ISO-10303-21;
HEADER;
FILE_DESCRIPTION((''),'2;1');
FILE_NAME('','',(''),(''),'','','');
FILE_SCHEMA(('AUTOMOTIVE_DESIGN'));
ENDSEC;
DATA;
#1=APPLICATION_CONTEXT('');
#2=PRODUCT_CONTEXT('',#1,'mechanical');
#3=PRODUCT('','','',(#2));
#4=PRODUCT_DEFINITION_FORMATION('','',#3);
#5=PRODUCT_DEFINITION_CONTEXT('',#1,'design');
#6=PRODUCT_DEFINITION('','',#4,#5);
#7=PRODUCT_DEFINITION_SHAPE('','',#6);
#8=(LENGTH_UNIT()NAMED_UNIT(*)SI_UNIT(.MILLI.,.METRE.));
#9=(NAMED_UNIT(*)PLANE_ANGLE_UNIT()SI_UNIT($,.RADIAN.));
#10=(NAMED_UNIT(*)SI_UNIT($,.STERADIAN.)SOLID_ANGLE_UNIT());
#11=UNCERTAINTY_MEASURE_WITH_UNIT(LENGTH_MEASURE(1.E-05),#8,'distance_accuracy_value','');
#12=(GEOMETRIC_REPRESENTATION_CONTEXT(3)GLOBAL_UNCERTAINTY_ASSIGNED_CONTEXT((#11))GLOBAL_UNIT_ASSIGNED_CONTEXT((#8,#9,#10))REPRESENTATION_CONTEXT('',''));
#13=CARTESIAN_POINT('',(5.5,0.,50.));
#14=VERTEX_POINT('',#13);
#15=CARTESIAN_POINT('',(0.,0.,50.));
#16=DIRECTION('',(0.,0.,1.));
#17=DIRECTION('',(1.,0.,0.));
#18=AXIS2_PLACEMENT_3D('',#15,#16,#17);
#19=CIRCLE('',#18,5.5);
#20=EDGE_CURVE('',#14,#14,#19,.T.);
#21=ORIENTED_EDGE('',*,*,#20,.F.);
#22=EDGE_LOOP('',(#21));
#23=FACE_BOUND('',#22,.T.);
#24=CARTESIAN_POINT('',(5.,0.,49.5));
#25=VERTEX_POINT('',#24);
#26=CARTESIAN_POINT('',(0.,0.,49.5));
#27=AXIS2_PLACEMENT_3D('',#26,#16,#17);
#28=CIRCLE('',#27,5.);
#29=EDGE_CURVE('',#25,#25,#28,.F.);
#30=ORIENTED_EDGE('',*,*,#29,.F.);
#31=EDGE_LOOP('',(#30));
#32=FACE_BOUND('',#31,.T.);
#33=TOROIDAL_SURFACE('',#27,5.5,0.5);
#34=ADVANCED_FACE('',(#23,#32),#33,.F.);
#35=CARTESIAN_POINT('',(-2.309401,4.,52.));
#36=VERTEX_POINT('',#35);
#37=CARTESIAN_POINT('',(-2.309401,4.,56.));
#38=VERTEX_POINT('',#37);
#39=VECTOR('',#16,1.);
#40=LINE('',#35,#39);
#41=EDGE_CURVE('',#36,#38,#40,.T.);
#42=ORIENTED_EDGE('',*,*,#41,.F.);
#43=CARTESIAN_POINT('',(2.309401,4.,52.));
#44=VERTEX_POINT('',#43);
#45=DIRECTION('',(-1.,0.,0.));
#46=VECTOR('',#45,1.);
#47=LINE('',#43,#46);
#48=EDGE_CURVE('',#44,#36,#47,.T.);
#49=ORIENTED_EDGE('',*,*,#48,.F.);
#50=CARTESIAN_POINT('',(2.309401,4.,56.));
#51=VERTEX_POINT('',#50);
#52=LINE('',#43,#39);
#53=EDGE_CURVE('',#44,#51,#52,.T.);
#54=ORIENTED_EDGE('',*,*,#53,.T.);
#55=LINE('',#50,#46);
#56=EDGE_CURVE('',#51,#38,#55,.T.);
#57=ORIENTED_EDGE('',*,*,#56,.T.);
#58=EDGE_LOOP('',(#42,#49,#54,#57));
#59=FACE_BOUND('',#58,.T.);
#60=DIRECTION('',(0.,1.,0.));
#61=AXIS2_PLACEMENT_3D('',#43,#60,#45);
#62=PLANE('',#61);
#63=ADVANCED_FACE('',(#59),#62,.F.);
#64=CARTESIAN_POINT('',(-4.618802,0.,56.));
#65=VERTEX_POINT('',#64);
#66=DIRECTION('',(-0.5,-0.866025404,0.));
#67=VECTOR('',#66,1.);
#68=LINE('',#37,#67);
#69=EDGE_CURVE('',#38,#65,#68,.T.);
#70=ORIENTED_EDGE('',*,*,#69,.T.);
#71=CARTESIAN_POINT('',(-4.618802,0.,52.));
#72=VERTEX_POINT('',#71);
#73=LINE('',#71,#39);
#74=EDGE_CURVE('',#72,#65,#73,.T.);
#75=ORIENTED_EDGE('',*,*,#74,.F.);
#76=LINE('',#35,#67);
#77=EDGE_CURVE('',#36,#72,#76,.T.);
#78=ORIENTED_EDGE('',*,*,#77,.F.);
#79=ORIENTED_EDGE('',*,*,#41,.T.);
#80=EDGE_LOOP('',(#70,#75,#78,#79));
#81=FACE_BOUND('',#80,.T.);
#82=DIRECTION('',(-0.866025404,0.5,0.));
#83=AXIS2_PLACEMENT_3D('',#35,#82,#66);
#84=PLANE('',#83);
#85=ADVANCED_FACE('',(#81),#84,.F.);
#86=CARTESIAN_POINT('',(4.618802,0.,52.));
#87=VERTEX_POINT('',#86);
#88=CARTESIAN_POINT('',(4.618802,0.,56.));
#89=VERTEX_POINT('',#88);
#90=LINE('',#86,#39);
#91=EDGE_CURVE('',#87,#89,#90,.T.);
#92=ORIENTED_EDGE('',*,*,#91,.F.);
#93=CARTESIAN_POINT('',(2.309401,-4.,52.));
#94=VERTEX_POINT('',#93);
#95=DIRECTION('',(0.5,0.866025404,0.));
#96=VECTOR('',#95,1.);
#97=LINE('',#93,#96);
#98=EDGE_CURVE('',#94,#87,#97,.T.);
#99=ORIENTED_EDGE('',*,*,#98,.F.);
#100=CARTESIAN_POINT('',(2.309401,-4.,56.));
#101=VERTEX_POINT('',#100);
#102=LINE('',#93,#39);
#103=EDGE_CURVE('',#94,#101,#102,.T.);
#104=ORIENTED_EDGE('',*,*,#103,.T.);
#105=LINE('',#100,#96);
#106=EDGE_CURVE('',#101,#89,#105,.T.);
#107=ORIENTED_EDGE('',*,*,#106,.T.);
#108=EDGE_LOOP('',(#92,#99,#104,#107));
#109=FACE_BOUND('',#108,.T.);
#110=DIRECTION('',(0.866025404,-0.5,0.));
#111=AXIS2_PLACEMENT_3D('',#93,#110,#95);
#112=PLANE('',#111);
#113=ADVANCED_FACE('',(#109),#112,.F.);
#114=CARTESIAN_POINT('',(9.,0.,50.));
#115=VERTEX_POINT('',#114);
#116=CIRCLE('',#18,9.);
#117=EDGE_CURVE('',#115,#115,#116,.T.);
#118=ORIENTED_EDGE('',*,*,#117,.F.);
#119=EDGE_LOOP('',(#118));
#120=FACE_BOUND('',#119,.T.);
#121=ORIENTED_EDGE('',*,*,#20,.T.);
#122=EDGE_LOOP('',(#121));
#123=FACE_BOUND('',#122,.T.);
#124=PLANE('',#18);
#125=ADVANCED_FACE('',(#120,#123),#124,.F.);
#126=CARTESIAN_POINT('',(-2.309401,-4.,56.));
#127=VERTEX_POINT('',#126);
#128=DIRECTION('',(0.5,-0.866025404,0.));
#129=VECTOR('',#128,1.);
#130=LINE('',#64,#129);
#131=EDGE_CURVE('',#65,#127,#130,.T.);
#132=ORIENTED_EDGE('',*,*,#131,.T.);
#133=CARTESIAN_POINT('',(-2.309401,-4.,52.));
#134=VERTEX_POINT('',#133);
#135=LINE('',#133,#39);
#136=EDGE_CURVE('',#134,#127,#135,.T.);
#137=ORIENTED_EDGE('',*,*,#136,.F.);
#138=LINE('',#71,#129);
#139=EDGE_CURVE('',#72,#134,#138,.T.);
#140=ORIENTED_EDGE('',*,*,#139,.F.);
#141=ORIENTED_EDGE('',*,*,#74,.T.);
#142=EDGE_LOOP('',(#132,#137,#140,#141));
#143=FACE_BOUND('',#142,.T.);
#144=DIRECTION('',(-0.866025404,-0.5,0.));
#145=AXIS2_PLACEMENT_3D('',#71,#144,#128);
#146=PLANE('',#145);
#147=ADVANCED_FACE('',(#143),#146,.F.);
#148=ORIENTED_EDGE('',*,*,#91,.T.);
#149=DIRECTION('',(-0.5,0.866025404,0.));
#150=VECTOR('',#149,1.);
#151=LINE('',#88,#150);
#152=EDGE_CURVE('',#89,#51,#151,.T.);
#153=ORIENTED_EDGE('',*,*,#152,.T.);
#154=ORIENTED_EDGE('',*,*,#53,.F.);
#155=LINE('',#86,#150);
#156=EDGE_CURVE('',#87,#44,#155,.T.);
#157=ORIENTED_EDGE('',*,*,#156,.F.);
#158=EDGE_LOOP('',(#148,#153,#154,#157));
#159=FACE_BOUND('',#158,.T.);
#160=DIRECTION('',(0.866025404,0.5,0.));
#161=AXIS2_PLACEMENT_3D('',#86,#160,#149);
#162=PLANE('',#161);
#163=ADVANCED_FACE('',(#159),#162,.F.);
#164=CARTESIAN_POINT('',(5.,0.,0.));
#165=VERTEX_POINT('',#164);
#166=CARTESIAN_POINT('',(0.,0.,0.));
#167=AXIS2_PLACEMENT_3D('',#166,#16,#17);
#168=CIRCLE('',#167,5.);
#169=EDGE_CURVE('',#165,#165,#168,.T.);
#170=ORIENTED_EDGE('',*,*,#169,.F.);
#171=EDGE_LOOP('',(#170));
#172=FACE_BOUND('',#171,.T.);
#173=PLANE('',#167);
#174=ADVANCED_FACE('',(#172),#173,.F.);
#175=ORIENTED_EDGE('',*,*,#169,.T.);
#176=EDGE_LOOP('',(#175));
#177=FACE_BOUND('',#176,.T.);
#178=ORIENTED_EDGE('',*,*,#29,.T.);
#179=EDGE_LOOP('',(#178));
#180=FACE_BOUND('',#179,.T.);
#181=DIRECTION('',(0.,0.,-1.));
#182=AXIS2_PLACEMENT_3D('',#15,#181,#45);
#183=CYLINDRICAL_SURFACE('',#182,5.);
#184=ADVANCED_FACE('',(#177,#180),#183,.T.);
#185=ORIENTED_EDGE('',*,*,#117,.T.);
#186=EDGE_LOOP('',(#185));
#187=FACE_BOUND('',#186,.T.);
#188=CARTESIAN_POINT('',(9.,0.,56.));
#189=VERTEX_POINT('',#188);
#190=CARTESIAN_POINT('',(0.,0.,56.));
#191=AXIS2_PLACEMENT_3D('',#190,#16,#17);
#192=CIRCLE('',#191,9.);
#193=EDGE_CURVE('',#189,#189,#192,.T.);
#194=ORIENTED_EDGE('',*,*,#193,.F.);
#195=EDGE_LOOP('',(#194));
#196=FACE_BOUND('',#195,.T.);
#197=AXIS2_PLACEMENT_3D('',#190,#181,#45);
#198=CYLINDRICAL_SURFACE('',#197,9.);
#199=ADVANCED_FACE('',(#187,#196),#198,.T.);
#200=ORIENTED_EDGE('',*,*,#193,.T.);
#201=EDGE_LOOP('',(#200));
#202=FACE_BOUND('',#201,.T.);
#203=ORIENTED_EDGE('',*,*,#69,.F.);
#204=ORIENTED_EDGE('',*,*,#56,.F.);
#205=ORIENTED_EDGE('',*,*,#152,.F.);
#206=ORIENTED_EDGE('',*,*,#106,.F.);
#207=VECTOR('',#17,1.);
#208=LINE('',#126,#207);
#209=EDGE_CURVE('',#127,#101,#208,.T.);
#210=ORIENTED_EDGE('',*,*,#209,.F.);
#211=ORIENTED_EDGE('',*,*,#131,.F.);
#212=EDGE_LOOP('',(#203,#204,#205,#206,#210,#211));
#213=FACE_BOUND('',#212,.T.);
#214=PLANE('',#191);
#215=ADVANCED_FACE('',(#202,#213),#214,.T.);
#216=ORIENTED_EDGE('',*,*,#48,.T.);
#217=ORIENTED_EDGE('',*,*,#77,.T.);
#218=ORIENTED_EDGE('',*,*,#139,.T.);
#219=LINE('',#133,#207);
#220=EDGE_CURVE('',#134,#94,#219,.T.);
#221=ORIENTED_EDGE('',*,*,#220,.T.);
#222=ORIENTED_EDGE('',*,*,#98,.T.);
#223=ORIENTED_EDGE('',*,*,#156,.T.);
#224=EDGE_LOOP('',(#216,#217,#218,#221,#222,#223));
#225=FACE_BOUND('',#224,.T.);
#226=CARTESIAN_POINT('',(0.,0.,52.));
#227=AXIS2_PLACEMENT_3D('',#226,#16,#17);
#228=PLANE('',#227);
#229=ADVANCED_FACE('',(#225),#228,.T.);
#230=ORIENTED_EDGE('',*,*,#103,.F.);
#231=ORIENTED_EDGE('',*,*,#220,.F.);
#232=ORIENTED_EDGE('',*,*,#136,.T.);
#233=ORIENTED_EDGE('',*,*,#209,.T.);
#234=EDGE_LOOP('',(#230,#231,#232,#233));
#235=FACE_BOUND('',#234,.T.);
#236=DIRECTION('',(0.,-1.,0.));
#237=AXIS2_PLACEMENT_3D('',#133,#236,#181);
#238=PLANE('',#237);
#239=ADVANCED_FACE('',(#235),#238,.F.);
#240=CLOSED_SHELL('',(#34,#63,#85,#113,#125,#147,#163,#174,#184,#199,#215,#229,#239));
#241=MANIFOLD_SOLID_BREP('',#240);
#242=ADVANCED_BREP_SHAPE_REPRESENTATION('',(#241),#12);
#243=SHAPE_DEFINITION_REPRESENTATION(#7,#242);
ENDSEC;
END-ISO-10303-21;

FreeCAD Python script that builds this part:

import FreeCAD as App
import Part
import Sketcher
Q = App.Units.Quantity


def edges_at(feature, points):
    """Names of the edges that pass closest to the given points."""
    edges = feature.Shape.Edges
    near = lambda p: min(range(len(edges)), key=lambda i: edges[i].distToShape(Part.Vertex(*p))[0])
    return sorted({f"Edge{near(p) + 1}" for p in points})


def add_polygon(sketch, points):
    """Adds a closed chain of lines whose ends are joined by coincident constraints."""
    first, n = sketch.GeometryCount, len(points)
    for a, b in zip(points, points[1:] + points[:1]):
        sketch.addGeometry(Part.LineSegment(App.Vector(*a, 0), App.Vector(*b, 0)), False)
    for i in range(n):
        sketch.addConstraint(Sketcher.Constraint("Coincident", first + i, 2, first + (i + 1) % n, 1))

doc = App.newDocument("Part")
params = doc.addObject("Spreadsheet::Sheet", "Params")
for row, (alias, value) in enumerate([
    ("sketch1_diameter", "10 mm"),
    ("pad1_length", "50 mm"),
    ("sketch2_diameter", "18 mm"),
    ("pad2_length", "6 mm"),
    ("pocket1_length", "4 mm"),
    ("fillet_radius", "0.5 mm"),
], start=1):
    params.set(f"A{row}", alias)
    params.set(f"B{row}", "=" + value)
    params.setAlias(f"B{row}", alias)

body = doc.addObject("PartDesign::Body", "Body")

# Sketch on XY plane
sketch1 = doc.addObject("Sketcher::SketchObject", "Sketch")
body.addObject(sketch1)
sketch1.AttachmentSupport = (doc.XY_Plane, [""])
sketch1.MapMode = "FlatFace"
sketch1.addGeometry(Part.Circle(App.Vector(0, 0, 0), App.Vector(0, 0, 1), 5), False)
sketch1.addConstraint([
    Sketcher.Constraint("Coincident", 0, 3, -1, 1),
    Sketcher.Constraint("Diameter", 0, Q("10 mm")),
])
sketch1.setExpression("Constraints[1]", "Params.sketch1_diameter")
pad1 = doc.addObject("PartDesign::Pad", "Pad")
body.addObject(pad1)
pad1.Profile = sketch1
pad1.setExpression("Length", "Params.pad1_length")

# Sketch on XY plane
sketch2 = doc.addObject("Sketcher::SketchObject", "Sketch001")
body.addObject(sketch2)
sketch2.AttachmentSupport = (doc.XY_Plane, [""])
sketch2.MapMode = "FlatFace"
sketch2.AttachmentOffset = App.Placement(App.Vector(0, 0, 50), App.Rotation())
sketch2.addGeometry(Part.Circle(App.Vector(0, 0, 0), App.Vector(0, 0, 1), 9), False)
sketch2.addConstraint([
    Sketcher.Constraint("Coincident", 0, 3, -1, 1),
    Sketcher.Constraint("Diameter", 0, Q("18 mm")),
])
sketch2.setExpression("Constraints[1]", "Params.sketch2_diameter")
pad2 = doc.addObject("PartDesign::Pad", "Pad001")
body.addObject(pad2)
pad2.Profile = sketch2
pad2.setExpression("Length", "Params.pad2_length")

# Sketch on XY plane
sketch3 = doc.addObject("Sketcher::SketchObject", "Sketch002")
body.addObject(sketch3)
sketch3.AttachmentSupport = (doc.XY_Plane, [""])
sketch3.MapMode = "FlatFace"
sketch3.AttachmentOffset = App.Placement(App.Vector(0, 0, 56), App.Rotation())
add_polygon(sketch3, [(4.618802, 0), (2.309401, 4), (-2.309401, 4), (-4.618802, 0), (-2.309401, -4), (2.309401, -4)])  # lines 0-5
sketch3.addConstraint([
    Sketcher.Constraint("Horizontal", 1),
    Sketcher.Constraint("Horizontal", 4),
    Sketcher.Constraint("Symmetric", 0, 2, 3, 2, -1, 1),
    Sketcher.Constraint("Symmetric", 2, 2, 5, 2, -1, 1),
    Sketcher.Constraint("PointOnObject", 2, 2, -1),
    Sketcher.Constraint("Parallel", 2, 5),
    Sketcher.Constraint("Vertical", 1, 2, 3, 2),
    Sketcher.Constraint("Angle", 0, Q("120 deg")),
    Sketcher.Constraint("DistanceY", -1, 1, 0, 2, Q("4 mm")),
    Sketcher.Constraint("DistanceX", -1, 1, 0, 2, Q("2.309401 mm")),
])
pocket1 = doc.addObject("PartDesign::Pocket", "Pocket")
body.addObject(pocket1)
pocket1.Profile = sketch3
pocket1.setExpression("Length", "Params.pocket1_length")
doc.recompute()

fillet = doc.addObject("PartDesign::Fillet", "Fillet")
body.addObject(fillet)
fillet.Base = (pocket1, edges_at(pocket1, [(-5, 0, 50)]))
fillet.setExpression("Radius", "Params.fillet_radius")

doc.recompute()
